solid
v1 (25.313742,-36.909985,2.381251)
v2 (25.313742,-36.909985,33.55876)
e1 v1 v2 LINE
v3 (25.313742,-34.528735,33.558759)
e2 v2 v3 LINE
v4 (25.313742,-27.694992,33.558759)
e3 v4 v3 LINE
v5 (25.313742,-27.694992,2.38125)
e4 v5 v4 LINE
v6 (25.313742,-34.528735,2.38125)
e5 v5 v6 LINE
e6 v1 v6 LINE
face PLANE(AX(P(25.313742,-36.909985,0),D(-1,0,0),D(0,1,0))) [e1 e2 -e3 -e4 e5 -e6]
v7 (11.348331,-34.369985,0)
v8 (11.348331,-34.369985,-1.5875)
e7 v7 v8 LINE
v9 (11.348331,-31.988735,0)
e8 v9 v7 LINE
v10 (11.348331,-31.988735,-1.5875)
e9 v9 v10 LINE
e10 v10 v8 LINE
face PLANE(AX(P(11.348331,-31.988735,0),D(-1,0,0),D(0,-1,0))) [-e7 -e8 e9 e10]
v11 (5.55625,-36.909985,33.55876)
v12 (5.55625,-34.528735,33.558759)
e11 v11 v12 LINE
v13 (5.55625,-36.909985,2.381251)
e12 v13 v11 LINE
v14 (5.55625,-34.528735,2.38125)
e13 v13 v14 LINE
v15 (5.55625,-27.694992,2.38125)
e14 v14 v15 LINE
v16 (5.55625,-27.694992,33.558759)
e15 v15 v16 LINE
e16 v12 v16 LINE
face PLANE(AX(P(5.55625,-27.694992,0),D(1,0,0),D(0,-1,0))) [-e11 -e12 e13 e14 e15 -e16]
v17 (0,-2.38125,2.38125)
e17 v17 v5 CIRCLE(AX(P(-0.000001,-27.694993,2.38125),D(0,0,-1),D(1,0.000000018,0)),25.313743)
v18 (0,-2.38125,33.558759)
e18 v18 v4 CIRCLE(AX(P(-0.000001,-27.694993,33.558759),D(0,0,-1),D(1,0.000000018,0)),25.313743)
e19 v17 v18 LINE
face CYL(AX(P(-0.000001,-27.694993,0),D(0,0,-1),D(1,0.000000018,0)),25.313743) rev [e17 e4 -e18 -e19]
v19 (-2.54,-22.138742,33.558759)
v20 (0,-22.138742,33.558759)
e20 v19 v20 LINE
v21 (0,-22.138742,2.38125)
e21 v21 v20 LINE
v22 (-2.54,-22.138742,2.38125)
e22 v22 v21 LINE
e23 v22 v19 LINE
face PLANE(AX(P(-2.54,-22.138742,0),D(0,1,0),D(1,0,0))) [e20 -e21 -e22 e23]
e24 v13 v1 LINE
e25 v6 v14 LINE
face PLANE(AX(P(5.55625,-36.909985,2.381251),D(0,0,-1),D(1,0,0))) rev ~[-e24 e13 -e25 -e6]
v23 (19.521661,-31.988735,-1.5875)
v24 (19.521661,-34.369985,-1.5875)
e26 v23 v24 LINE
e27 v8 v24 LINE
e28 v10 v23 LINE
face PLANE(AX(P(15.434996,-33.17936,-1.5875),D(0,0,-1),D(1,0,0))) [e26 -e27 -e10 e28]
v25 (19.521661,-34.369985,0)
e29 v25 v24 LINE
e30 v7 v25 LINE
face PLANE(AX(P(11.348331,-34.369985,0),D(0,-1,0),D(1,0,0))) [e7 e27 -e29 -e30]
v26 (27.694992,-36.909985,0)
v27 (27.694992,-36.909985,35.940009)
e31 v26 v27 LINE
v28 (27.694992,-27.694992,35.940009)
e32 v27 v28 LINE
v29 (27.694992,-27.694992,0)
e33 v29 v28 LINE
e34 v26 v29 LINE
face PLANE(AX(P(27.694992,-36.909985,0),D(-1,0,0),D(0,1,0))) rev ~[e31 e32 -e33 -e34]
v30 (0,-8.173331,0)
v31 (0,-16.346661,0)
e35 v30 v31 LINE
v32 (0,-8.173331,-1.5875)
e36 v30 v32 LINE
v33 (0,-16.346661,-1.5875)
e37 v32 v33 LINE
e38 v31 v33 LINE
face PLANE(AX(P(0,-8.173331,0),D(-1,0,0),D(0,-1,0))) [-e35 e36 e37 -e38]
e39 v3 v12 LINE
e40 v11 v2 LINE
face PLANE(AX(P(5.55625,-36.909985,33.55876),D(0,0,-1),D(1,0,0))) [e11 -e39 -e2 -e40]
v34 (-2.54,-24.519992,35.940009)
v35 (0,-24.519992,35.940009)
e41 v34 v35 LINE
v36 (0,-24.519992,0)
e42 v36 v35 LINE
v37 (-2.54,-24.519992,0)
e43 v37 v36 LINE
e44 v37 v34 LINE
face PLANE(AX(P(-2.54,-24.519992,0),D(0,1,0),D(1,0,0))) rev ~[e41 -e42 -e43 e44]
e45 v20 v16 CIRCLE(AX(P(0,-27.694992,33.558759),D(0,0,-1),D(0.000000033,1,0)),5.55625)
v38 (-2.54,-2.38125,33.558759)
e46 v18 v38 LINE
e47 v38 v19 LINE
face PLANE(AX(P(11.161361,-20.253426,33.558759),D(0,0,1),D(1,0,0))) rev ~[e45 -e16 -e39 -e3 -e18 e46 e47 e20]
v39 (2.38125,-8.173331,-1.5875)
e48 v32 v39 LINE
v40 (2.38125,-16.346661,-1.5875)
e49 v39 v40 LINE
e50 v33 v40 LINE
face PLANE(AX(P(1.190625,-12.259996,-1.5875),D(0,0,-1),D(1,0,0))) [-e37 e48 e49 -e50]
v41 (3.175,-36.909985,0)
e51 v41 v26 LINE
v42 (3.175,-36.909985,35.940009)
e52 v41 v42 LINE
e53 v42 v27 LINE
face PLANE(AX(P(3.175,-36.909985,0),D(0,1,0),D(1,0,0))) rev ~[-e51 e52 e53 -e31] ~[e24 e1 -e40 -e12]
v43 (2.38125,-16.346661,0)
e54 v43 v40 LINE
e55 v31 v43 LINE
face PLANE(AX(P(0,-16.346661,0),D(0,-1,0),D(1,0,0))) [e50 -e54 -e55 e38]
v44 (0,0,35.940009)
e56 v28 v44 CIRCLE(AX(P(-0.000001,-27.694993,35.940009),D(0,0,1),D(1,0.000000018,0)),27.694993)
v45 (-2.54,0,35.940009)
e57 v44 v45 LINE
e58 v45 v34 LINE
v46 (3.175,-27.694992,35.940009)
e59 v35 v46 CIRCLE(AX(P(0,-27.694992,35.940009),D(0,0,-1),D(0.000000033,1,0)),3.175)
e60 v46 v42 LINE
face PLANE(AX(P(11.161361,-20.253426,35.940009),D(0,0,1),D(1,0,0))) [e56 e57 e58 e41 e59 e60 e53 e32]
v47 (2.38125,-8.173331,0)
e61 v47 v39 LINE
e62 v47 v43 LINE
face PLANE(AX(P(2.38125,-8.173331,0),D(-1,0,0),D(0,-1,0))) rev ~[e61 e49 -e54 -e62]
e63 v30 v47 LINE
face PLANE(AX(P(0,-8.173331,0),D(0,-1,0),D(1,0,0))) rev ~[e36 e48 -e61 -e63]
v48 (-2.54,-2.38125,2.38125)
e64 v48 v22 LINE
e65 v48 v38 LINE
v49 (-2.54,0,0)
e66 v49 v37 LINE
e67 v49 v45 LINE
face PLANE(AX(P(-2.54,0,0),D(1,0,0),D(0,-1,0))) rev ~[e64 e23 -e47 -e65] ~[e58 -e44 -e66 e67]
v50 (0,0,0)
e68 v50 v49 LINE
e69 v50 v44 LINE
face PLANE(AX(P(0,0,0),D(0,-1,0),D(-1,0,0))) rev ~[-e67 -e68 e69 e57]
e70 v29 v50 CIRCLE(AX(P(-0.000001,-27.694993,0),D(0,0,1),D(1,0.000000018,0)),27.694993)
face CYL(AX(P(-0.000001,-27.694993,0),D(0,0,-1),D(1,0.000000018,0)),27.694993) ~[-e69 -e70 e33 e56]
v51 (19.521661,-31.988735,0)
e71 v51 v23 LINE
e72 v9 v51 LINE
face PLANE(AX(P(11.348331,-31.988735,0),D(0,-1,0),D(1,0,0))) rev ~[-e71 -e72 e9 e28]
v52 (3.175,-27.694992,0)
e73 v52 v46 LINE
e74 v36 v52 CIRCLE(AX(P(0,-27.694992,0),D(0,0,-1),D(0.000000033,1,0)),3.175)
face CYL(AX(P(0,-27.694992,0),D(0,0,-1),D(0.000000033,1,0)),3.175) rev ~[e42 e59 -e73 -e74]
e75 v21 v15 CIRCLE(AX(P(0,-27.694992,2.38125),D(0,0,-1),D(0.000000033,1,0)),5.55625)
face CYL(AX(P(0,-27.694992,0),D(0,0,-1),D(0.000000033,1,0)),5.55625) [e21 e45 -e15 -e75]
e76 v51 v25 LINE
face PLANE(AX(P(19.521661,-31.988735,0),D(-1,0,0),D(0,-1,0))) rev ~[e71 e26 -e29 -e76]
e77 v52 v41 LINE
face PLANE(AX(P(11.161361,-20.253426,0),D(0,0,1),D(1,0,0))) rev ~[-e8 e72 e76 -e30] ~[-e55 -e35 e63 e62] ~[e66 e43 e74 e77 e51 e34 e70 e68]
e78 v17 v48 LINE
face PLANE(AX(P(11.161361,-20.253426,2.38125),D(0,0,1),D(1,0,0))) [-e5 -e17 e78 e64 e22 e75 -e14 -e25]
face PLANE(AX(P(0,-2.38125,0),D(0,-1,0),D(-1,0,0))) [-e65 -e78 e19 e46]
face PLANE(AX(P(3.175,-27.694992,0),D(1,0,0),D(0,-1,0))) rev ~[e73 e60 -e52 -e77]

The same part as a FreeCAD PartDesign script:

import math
import FreeCAD as App
import Part
import Sketcher

V = App.Vector
Q = App.Units.Quantity


def faces_at(feature, points):
    """Names of the faces that lie closest to the given points."""
    faces = feature.Shape.Faces
    near = lambda p: min(range(len(faces)), key=lambda i: faces[i].distToShape(Part.Vertex(*p))[0])
    return sorted({f"Face{near(p) + 1}" for p in points})


def add_polygon(sketch, points):
    """Adds a closed chain of lines whose ends are joined by coincident constraints."""
    first, n = sketch.GeometryCount, len(points)
    for a, b in zip(points, points[1:] + points[:1]):
        sketch.addGeometry(Part.LineSegment(App.Vector(*a, 0), App.Vector(*b, 0)), False)
    for i in range(n):
        sketch.addConstraint(Sketcher.Constraint("Coincident", first + i, 2, first + (i + 1) % n, 1))

doc = App.newDocument("Part")
body = doc.addObject("PartDesign::Body", "Body")

# Sketch on XY plane
sketch1 = body.newObject("Sketcher::SketchObject", "Sketch")
sketch1.AttachmentSupport = (doc.getObject("XY_Plane"), [""])
sketch1.MapMode = "FlatFace"
sketch1.addGeometry([
    Part.ArcOfCircle(Part.Circle(V(0, -27.7, 0), V(0, 0, 1), 27.7), math.radians(0), math.radians(90)),  # 0
    Part.LineSegment(V(0, 0, 0), V(-2.5, 0, 0)),  # 1
    Part.LineSegment(V(-2.5, 0, 0), V(-2.5, -24.5, 0)),  # 2
    Part.LineSegment(V(-2.5, -24.5, 0), V(0, -24.5, 0)),  # 3
    Part.ArcOfCircle(Part.Circle(V(0, -27.7, 0), V(0, 0, 1), 3.2), math.radians(0), math.radians(90)),  # 4
    Part.LineSegment(V(3.2, -27.7, 0), V(3.2, -36.9, 0)),  # 5
    Part.LineSegment(V(3.2, -36.9, 0), V(27.7, -36.9, 0)),  # 6
    Part.LineSegment(V(27.7, -36.9, 0), V(27.7, -27.7, 0)),  # 7
], False)
sketch1.addConstraint([
    Sketcher.Constraint("Tangent", 0, 2, 1, 1),
    Sketcher.Constraint("Coincident", 1, 2, 2, 1),
    Sketcher.Constraint("Coincident", 2, 2, 3, 1),
    Sketcher.Constraint("Tangent", 3, 2, 4, 2),
    Sketcher.Constraint("Tangent", 4, 1, 5, 1),
    Sketcher.Constraint("Coincident", 5, 2, 6, 1),
    Sketcher.Constraint("Coincident", 6, 2, 7, 1),
    Sketcher.Constraint("Tangent", 7, 2, 0, 1),
    Sketcher.Constraint("Horizontal", 1),
    Sketcher.Constraint("Vertical", 2),
    Sketcher.Constraint("Horizontal", 3),
    Sketcher.Constraint("Vertical", 5),
    Sketcher.Constraint("Horizontal", 6),
    Sketcher.Constraint("Vertical", 7),
    Sketcher.Constraint("Coincident", 0, 2, -1, 1),
    Sketcher.Constraint("Coincident", 4, 3, 0, 3),
    Sketcher.Constraint("DistanceX", 1, 2, 1, 1, Q("0.1 in")),
    Sketcher.Constraint("Radius", 4, Q("0.125 in")),
    Sketcher.Constraint("Radius", 0, Q("27.694993 mm")),
    Sketcher.Constraint("DistanceY", 5, 2, 5, 1, Q("9.214993 mm")),
])
pad1 = body.newObject("PartDesign::Pad", "Pad")
pad1.Profile = sketch1
pad1.Length = 35.940009
doc.recompute()

thickness = body.newObject("PartDesign::Thickness", "Thickness")
thickness.Base = (pad1, faces_at(pad1, [(-2.54, -12.26, 17.97)]))
thickness.Value = Q("0.09375 in")
thickness.Reversed = True
thickness.Join = "Arc"

# Sketch on XZ plane
sketch2 = body.newObject("Sketcher::SketchObject", "Sketch001")
sketch2.AttachmentSupport = (doc.getObject("XZ_Plane"), [""])
sketch2.MapMode = "FlatFace"
sketch2.AttachmentOffset = App.Placement(V(0, 0, 36.909985), App.Rotation())
add_polygon(sketch2, [(6, 34), (6, 2), (25, 2), (25, 34)])  # lines 0-3
sketch2.addConstraint([
    Sketcher.Constraint("Vertical", 0),
    Sketcher.Constraint("Horizontal", 1),
    Sketcher.Constraint("Vertical", 2),
    Sketcher.Constraint("Horizontal", 3),
    Sketcher.Constraint("DistanceX", -1, 1, 0, 2, Q("0.21875 in")),
    Sketcher.Constraint("DistanceY", -1, 1, 0, 2, Q("0.09375 in")),
    Sketcher.Constraint("DistanceX", 1, 1, 1, 2, Q("19.757492 mm")),
    Sketcher.Constraint("DistanceY", 0, 2, 0, 1, Q("31.177509 mm")),
])
pocket1 = body.newObject("PartDesign::Pocket", "Pocket")
pocket1.Profile = sketch2
pocket1.Length = Q("0.09375 in")

# Sketch on XY plane
sketch3 = body.newObject("Sketcher::SketchObject", "Sketch002")
sketch3.AttachmentSupport = (doc.getObject("XY_Plane"), [""])
sketch3.MapMode = "FlatFace"
add_polygon(sketch3, [(0, -16.3), (0, -8.2), (2.4, -8.2), (2.4, -16.3)])  # lines 0-3
add_polygon(sketch3, [(11.3, -34.4), (11.3, -32), (19.5, -32), (19.5, -34.4)])  # lines 4-7
sketch3.addConstraint([
    Sketcher.Constraint("Vertical", 0),
    Sketcher.Constraint("Horizontal", 1),
    Sketcher.Constraint("Vertical", 2),
    Sketcher.Constraint("Horizontal", 3),
    Sketcher.Constraint("Vertical", 4),
    Sketcher.Constraint("Horizontal", 5),
    Sketcher.Constraint("Vertical", 6),
    Sketcher.Constraint("Horizontal", 7),
    Sketcher.Constraint("PointOnObject", 0, 2, -2),
    Sketcher.Constraint("Equal", 7, 0),
    Sketcher.Constraint("Equal", 3, 4),
    Sketcher.Constraint("DistanceX", 1, 1, 1, 2, Q("0.09375 in")),
    Sketcher.Constraint("DistanceX", 5, 1, 5, 2, Q("8.17333 mm")),
    Sketcher.Constraint("DistanceY", 0, 2, -1, 1, Q("8.173331 mm")),
    Sketcher.Constraint("DistanceX", -1, 1, 4, 2, Q("11.348331 mm")),
    Sketcher.Constraint("DistanceY", 4, 2, -1, 1, Q("31.988735 mm")),
])
pad2 = body.newObject("PartDesign::Pad", "Pad001")
pad2.Profile = sketch3
pad2.Length = Q("0.0625 in")
pad2.Reversed = True

doc.recompute()
